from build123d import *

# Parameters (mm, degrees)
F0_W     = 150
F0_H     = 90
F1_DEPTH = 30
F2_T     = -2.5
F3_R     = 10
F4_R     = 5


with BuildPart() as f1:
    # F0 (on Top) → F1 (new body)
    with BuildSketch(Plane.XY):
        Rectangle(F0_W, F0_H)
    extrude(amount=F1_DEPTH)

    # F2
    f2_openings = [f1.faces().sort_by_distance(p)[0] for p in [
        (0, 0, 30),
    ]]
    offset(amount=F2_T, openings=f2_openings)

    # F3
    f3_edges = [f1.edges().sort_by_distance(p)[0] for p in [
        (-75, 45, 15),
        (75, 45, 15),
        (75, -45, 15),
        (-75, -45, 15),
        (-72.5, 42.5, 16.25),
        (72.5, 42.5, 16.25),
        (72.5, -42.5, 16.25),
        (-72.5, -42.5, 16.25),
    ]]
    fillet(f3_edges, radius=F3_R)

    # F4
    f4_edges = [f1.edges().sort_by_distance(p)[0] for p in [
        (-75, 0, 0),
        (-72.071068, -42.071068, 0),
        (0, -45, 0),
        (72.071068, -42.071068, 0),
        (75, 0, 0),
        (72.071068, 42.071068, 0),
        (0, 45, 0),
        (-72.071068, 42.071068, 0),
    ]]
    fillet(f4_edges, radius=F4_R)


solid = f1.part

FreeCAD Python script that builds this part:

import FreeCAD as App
import Part
import Sketcher
from FreeCAD import Vector


def edges_at(feature, points):
    """Names of the edges that pass closest to the given points."""
    edges = feature.Shape.Edges
    near = lambda p: min(range(len(edges)), key=lambda i: edges[i].distToShape(Part.Vertex(*p))[0])
    return sorted({f"Edge{near(p) + 1}" for p in points})


def faces_at(feature, points):
    """Names of the faces that lie closest to the given points."""
    faces = feature.Shape.Faces
    near = lambda p: min(range(len(faces)), key=lambda i: faces[i].distToShape(Part.Vertex(*p))[0])
    return sorted({f"Face{near(p) + 1}" for p in points})

doc = App.newDocument("Part")
params = doc.addObject("Spreadsheet::Sheet", "Params")
for row, (alias, value) in enumerate([
    ("sketch1_width", "150 mm"),
    ("sketch1_height", "90 mm"),
    ("pad1_length", "30 mm"),
    ("thickness_wall", "2.5 mm"),
    ("fillet_radius", "10 mm"),
    ("fillet2_radius", "5 mm"),
], start=1):
    params.set(f"A{row}", alias)
    params.set(f"B{row}", "=" + value)
    params.setAlias(f"B{row}", alias)

body = doc.addObject("PartDesign::Body", "Body")

# Sketch on XY plane
sketch1 = body.newObject("Sketcher::SketchObject", "Sketch")
sketch1.AttachmentSupport = (doc.getObject("XY_Plane"), [""])
sketch1.MapMode = "FlatFace"
sketch1.addGeometry([
    Part.LineSegment(Vector(-75, 45, 0), Vector(-75, -45, 0)),
    Part.LineSegment(Vector(-75, -45, 0), Vector(75, -45, 0)),
    Part.LineSegment(Vector(75, -45, 0), Vector(75, 45, 0)),
    Part.LineSegment(Vector(75, 45, 0), Vector(-75, 45, 0)),
], False)
sketch1.addConstraint([
    Sketcher.Constraint("Coincident", 0, 2, 1, 1),
    Sketcher.Constraint("Coincident", 1, 2, 2, 1),
    Sketcher.Constraint("Coincident", 2, 2, 3, 1),
    Sketcher.Constraint("Coincident", 3, 2, 0, 1),
    Sketcher.Constraint("Vertical", 0),
    Sketcher.Constraint("Horizontal", 1),
    Sketcher.Constraint("Vertical", 2),
    Sketcher.Constraint("Horizontal", 3),
    Sketcher.Constraint("Symmetric", 0, 2, 2, 2, -1, 1),
    Sketcher.Constraint("DistanceX", 1, 1, 1, 2, 150.0),
    Sketcher.Constraint("DistanceY", 0, 2, 0, 1, 90.0),
])
sketch1.setExpression("Constraints[9]", "Params.sketch1_width")
sketch1.setExpression("Constraints[10]", "Params.sketch1_height")
pad1 = body.newObject("PartDesign::Pad", "Pad")
pad1.Profile = sketch1
pad1.setExpression("Length", "Params.pad1_length")
doc.recompute()

thickness = body.newObject("PartDesign::Thickness", "Thickness")
thickness.Base = (pad1, faces_at(pad1, [(0, 0, 30)]))
thickness.setExpression("Value", "Params.thickness_wall")
thickness.Reversed = True
thickness.Join = "Arc"
doc.recompute()

fillet = body.newObject("PartDesign::Fillet", "Fillet")
fillet.Base = (thickness, edges_at(thickness, [
    (-75, 45, 15),
    (75, 45, 15),
    (75, -45, 15),
    (-75, -45, 15),
    (-72.5, 42.5, 16.25),
    (72.5, 42.5, 16.25),
    (72.5, -42.5, 16.25),
    (-72.5, -42.5, 16.25),
]))
fillet.setExpression("Radius", "Params.fillet_radius")
doc.recompute()

fillet2 = body.newObject("PartDesign::Fillet", "Fillet001")
fillet2.Base = (fillet, edges_at(fillet, [
    (-75, 0, 0),
    (-72.071, -42.071, 0),
    (0, -45, 0),
    (72.071, -42.071, 0),
    (75, 0, 0),
    (72.071, 42.071, 0),
    (0, 45, 0),
    (-72.071, 42.071, 0),
]))
fillet2.setExpression("Radius", "Params.fillet2_radius")

doc.recompute()
